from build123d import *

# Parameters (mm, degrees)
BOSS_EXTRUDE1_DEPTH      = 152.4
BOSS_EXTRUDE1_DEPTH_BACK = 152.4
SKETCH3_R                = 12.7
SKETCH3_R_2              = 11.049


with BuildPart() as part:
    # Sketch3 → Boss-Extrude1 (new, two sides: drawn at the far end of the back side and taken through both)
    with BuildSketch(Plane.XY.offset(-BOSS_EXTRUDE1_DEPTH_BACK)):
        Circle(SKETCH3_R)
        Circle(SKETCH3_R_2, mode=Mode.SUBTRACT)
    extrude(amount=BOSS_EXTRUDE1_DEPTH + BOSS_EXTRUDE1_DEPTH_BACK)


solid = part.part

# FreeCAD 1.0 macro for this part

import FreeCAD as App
import Part
import Sketcher

V = App.Vector
Q = App.Units.Quantity

doc = App.newDocument("Part")
body = doc.addObject("PartDesign::Body", "Body")

# Sketch on XY plane
sketch1 = body.newObject("Sketcher::SketchObject", "Sketch")
sketch1.AttachmentSupport = (doc.getObject("XY_Plane"), [""])
sketch1.MapMode = "FlatFace"
sketch1.addGeometry([
    Part.Circle(V(0, 0, 0), V(0, 0, 1), 13),
    Part.Circle(V(0, 0, 0), V(0, 0, 1), 11),
], False)
sketch1.addConstraint([
    Sketcher.Constraint("Coincident", 0, 3, -1, 1),
    Sketcher.Constraint("Coincident", 1, 3, -1, 1),
    Sketcher.Constraint("Diameter", 0, Q("1 in")),
    Sketcher.Constraint("Diameter", 1, Q("0.87 in")),
])
pad1 = body.newObject("PartDesign::Pad", "Pad")
pad1.Profile = sketch1
pad1.Type = "TwoLengths"
pad1.Length = Q("6 in")
pad1.Length2 = Q("6 in")

doc.recompute()
